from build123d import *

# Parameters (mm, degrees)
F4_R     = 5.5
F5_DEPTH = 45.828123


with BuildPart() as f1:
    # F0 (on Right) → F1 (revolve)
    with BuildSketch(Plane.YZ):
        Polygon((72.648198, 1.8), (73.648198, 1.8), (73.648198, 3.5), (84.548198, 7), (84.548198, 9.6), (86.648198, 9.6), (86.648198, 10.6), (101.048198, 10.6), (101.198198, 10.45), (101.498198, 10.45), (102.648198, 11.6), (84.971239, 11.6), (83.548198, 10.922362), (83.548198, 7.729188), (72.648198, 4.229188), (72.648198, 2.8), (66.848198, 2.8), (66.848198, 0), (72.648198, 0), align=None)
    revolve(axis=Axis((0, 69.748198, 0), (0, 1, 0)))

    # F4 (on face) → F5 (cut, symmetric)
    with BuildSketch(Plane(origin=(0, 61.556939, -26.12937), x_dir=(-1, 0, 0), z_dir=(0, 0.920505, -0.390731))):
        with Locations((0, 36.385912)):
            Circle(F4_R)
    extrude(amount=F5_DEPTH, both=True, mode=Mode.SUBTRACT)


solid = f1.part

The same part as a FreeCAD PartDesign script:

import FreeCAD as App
import Part
import Sketcher
Q = App.Units.Quantity

doc = App.newDocument("Part")
body = doc.addObject("PartDesign::Body", "Body")

# Sketch on YZ plane
sketch1 = doc.addObject("Sketcher::SketchObject", "Sketch")
body.addObject(sketch1)
sketch1.AttachmentSupport = (doc.YZ_Plane, [""])
sketch1.MapMode = "FlatFace"
sketch1.addGeometry(Part.LineSegment(App.Vector(72.65, 1.8, 0), App.Vector(73.65, 1.8, 0)), False)
sketch1.addGeometry(Part.LineSegment(App.Vector(73.65, 1.8, 0), App.Vector(73.65, 3.5, 0)), False)
sketch1.addGeometry(Part.LineSegment(App.Vector(73.65, 3.5, 0), App.Vector(84.55, 7, 0)), False)
sketch1.addGeometry(Part.LineSegment(App.Vector(84.55, 7, 0), App.Vector(84.55, 9.6, 0)), False)
sketch1.addGeometry(Part.LineSegment(App.Vector(84.55, 9.6, 0), App.Vector(86.65, 9.6, 0)), False)
sketch1.addGeometry(Part.LineSegment(App.Vector(86.65, 9.6, 0), App.Vector(86.65, 10.6, 0)), False)
sketch1.addGeometry(Part.LineSegment(App.Vector(86.65, 10.6, 0), App.Vector(101.05, 10.6, 0)), False)
sketch1.addGeometry(Part.LineSegment(App.Vector(101.05, 10.6, 0), App.Vector(101.2, 10.45, 0)), False)
sketch1.addGeometry(Part.LineSegment(App.Vector(101.2, 10.45, 0), App.Vector(101.5, 10.45, 0)), False)
sketch1.addGeometry(Part.LineSegment(App.Vector(101.5, 10.45, 0), App.Vector(102.65, 11.6, 0)), False)
sketch1.addGeometry(Part.LineSegment(App.Vector(102.65, 11.6, 0), App.Vector(84.97, 11.6, 0)), False)
sketch1.addGeometry(Part.LineSegment(App.Vector(84.97, 11.6, 0), App.Vector(83.55, 10.92, 0)), False)
sketch1.addGeometry(Part.LineSegment(App.Vector(83.55, 10.92, 0), App.Vector(83.55, 7.73, 0)), False)
sketch1.addGeometry(Part.LineSegment(App.Vector(83.55, 7.73, 0), App.Vector(72.65, 4.23, 0)), False)
sketch1.addGeometry(Part.LineSegment(App.Vector(72.65, 4.23, 0), App.Vector(72.65, 2.8, 0)), False)
sketch1.addGeometry(Part.LineSegment(App.Vector(72.65, 2.8, 0), App.Vector(66.85, 2.8, 0)), False)
sketch1.addGeometry(Part.LineSegment(App.Vector(66.85, 2.8, 0), App.Vector(66.85, 0, 0)), False)
sketch1.addGeometry(Part.LineSegment(App.Vector(66.85, 0, 0), App.Vector(72.65, 0, 0)), False)
sketch1.addGeometry(Part.LineSegment(App.Vector(72.65, 0, 0), App.Vector(72.65, 1.8, 0)), False)
sketch1.addConstraint(Sketcher.Constraint("Coincident", 0, 2, 1, 1))
sketch1.addConstraint(Sketcher.Constraint("Coincident", 1, 2, 2, 1))
sketch1.addConstraint(Sketcher.Constraint("Coincident", 2, 2, 3, 1))
sketch1.addConstraint(Sketcher.Constraint("Coincident", 3, 2, 4, 1))
sketch1.addConstraint(Sketcher.Constraint("Coincident", 4, 2, 5, 1))
sketch1.addConstraint(Sketcher.Constraint("Coincident", 5, 2, 6, 1))
sketch1.addConstraint(Sketcher.Constraint("Coincident", 6, 2, 7, 1))
sketch1.addConstraint(Sketcher.Constraint("Coincident", 7, 2, 8, 1))
sketch1.addConstraint(Sketcher.Constraint("Coincident", 8, 2, 9, 1))
sketch1.addConstraint(Sketcher.Constraint("Coincident", 9, 2, 10, 1))
sketch1.addConstraint(Sketcher.Constraint("Coincident", 10, 2, 11, 1))
sketch1.addConstraint(Sketcher.Constraint("Coincident", 11, 2, 12, 1))
sketch1.addConstraint(Sketcher.Constraint("Coincident", 12, 2, 13, 1))
sketch1.addConstraint(Sketcher.Constraint("Coincident", 13, 2, 14, 1))
sketch1.addConstraint(Sketcher.Constraint("Coincident", 14, 2, 15, 1))
sketch1.addConstraint(Sketcher.Constraint("Coincident", 15, 2, 16, 1))
sketch1.addConstraint(Sketcher.Constraint("Coincident", 16, 2, 17, 1))
sketch1.addConstraint(Sketcher.Constraint("Coincident", 17, 2, 18, 1))
sketch1.addConstraint(Sketcher.Constraint("Coincident", 18, 2, 0, 1))
sketch1.addConstraint(Sketcher.Constraint("Horizontal", 0))
sketch1.addConstraint(Sketcher.Constraint("Vertical", 1))
sketch1.addConstraint(Sketcher.Constraint("Vertical", 3))
sketch1.addConstraint(Sketcher.Constraint("Horizontal", 4))
sketch1.addConstraint(Sketcher.Constraint("Vertical", 5))
sketch1.addConstraint(Sketcher.Constraint("Horizontal", 6))
sketch1.addConstraint(Sketcher.Constraint("Horizontal", 8))
sketch1.addConstraint(Sketcher.Constraint("Horizontal", 10))
sketch1.addConstraint(Sketcher.Constraint("Vertical", 12))
sketch1.addConstraint(Sketcher.Constraint("Vertical", 14))
sketch1.addConstraint(Sketcher.Constraint("Horizontal", 15))
sketch1.addConstraint(Sketcher.Constraint("Vertical", 16))
sketch1.addConstraint(Sketcher.Constraint("Horizontal", 17))
sketch1.addConstraint(Sketcher.Constraint("Vertical", 18))
sketch1.addConstraint(Sketcher.Constraint("PointOnObject", 16, 2, -1))
sketch1.addConstraint(Sketcher.Constraint("Perpendicular", 7, 9))
sketch1.addConstraint(Sketcher.Constraint("Parallel", 2, 13))
sketch1.addConstraint(Sketcher.Constraint("Vertical", 14, 2, 17, 2))
sketch1.addConstraint(Sketcher.Constraint("Equal", 0, 5))
sketch1.addConstraint(Sketcher.Constraint("Equal", 2, 13))
sketch1.addConstraint(Sketcher.Constraint("DistanceX", 0, 1, 0, 2, 1.0))
sketch1.addConstraint(Sketcher.Constraint("Angle", 7, Q("-45 deg")))
sketch1.addConstraint(Sketcher.Constraint("DistanceX", 4, 1, 4, 2, 2.1))
sketch1.addConstraint(Sketcher.Constraint("DistanceX", 6, 1, 6, 2, 14.4))
sketch1.addConstraint(Sketcher.Constraint("DistanceX", 8, 1, 8, 2, 0.3))
sketch1.addConstraint(Sketcher.Constraint("DistanceX", 15, 2, 15, 1, 5.8))
sketch1.addConstraint(Sketcher.Constraint("DistanceY", 1, 1, 1, 2, 1.7))
sketch1.addConstraint(Sketcher.Constraint("DistanceY", 3, 1, 3, 2, 2.6))
sketch1.addConstraint(Sketcher.Constraint("DistanceY", 16, 2, 16, 1, 2.8))
sketch1.addConstraint(Sketcher.Constraint("DistanceY", 18, 1, 18, 2, 1.8))
sketch1.addConstraint(Sketcher.Constraint("DistanceY", -1, 1, 2, 2, 7.0))
sketch1.addConstraint(Sketcher.Constraint("DistanceX", 1, 2, 4, 2, 13.0))
sketch1.addConstraint(Sketcher.Constraint("DistanceY", 6, 2, 9, 2, 1.0))
sketch1.addConstraint(Sketcher.Constraint("DistanceX", 5, 2, 9, 2, 16.0))
sketch1.addConstraint(Sketcher.Constraint("DistanceX", 10, 2, 10, 1, 17.676959))
sketch1.addConstraint(Sketcher.Constraint("DistanceX", -1, 1, 2, 2, 84.548198))
sketch1.addConstraint(Sketcher.Constraint("DistanceY", 12, 2, 12, 1, 3.193174))
sketch1.addConstraint(Sketcher.Constraint("DistanceY", 14, 2, 14, 1, 1.429188))
revolution = doc.addObject("PartDesign::Revolution", "Revolution")
body.addObject(revolution)
revolution.Profile = sketch1
revolution.ReferenceAxis = (sketch1, ["H_Axis"])
revolution.Angle = 360

# Sketch on an angled plane
sketch2 = doc.addObject("Sketcher::SketchObject", "Sketch001")
body.addObject(sketch2)
sketch2.Placement = App.Placement(App.Vector(0, 61.556939, -26.12937), App.Rotation(App.Vector(-1, 0, 0), App.Vector(0, 0.390730967, 0.920504922), App.Vector(0, 0.920504922, -0.390730967), "ZXY"))
sketch2.addGeometry(Part.Circle(App.Vector(0, 36, 0), App.Vector(0, 0, 1), 6), False)
sketch2.addConstraint(Sketcher.Constraint("PointOnObject", 0, 3, -2))
sketch2.addConstraint(Sketcher.Constraint("Diameter", 0, 11.0))
sketch2.addConstraint(Sketcher.Constraint("DistanceY", -1, 1, 0, 3, 36.385912))
pocket1 = doc.addObject("PartDesign::Pocket", "Pocket")
body.addObject(pocket1)
pocket1.Profile = sketch2
pocket1.Length = 91.656246
pocket1.Midplane = True

doc.recompute()
